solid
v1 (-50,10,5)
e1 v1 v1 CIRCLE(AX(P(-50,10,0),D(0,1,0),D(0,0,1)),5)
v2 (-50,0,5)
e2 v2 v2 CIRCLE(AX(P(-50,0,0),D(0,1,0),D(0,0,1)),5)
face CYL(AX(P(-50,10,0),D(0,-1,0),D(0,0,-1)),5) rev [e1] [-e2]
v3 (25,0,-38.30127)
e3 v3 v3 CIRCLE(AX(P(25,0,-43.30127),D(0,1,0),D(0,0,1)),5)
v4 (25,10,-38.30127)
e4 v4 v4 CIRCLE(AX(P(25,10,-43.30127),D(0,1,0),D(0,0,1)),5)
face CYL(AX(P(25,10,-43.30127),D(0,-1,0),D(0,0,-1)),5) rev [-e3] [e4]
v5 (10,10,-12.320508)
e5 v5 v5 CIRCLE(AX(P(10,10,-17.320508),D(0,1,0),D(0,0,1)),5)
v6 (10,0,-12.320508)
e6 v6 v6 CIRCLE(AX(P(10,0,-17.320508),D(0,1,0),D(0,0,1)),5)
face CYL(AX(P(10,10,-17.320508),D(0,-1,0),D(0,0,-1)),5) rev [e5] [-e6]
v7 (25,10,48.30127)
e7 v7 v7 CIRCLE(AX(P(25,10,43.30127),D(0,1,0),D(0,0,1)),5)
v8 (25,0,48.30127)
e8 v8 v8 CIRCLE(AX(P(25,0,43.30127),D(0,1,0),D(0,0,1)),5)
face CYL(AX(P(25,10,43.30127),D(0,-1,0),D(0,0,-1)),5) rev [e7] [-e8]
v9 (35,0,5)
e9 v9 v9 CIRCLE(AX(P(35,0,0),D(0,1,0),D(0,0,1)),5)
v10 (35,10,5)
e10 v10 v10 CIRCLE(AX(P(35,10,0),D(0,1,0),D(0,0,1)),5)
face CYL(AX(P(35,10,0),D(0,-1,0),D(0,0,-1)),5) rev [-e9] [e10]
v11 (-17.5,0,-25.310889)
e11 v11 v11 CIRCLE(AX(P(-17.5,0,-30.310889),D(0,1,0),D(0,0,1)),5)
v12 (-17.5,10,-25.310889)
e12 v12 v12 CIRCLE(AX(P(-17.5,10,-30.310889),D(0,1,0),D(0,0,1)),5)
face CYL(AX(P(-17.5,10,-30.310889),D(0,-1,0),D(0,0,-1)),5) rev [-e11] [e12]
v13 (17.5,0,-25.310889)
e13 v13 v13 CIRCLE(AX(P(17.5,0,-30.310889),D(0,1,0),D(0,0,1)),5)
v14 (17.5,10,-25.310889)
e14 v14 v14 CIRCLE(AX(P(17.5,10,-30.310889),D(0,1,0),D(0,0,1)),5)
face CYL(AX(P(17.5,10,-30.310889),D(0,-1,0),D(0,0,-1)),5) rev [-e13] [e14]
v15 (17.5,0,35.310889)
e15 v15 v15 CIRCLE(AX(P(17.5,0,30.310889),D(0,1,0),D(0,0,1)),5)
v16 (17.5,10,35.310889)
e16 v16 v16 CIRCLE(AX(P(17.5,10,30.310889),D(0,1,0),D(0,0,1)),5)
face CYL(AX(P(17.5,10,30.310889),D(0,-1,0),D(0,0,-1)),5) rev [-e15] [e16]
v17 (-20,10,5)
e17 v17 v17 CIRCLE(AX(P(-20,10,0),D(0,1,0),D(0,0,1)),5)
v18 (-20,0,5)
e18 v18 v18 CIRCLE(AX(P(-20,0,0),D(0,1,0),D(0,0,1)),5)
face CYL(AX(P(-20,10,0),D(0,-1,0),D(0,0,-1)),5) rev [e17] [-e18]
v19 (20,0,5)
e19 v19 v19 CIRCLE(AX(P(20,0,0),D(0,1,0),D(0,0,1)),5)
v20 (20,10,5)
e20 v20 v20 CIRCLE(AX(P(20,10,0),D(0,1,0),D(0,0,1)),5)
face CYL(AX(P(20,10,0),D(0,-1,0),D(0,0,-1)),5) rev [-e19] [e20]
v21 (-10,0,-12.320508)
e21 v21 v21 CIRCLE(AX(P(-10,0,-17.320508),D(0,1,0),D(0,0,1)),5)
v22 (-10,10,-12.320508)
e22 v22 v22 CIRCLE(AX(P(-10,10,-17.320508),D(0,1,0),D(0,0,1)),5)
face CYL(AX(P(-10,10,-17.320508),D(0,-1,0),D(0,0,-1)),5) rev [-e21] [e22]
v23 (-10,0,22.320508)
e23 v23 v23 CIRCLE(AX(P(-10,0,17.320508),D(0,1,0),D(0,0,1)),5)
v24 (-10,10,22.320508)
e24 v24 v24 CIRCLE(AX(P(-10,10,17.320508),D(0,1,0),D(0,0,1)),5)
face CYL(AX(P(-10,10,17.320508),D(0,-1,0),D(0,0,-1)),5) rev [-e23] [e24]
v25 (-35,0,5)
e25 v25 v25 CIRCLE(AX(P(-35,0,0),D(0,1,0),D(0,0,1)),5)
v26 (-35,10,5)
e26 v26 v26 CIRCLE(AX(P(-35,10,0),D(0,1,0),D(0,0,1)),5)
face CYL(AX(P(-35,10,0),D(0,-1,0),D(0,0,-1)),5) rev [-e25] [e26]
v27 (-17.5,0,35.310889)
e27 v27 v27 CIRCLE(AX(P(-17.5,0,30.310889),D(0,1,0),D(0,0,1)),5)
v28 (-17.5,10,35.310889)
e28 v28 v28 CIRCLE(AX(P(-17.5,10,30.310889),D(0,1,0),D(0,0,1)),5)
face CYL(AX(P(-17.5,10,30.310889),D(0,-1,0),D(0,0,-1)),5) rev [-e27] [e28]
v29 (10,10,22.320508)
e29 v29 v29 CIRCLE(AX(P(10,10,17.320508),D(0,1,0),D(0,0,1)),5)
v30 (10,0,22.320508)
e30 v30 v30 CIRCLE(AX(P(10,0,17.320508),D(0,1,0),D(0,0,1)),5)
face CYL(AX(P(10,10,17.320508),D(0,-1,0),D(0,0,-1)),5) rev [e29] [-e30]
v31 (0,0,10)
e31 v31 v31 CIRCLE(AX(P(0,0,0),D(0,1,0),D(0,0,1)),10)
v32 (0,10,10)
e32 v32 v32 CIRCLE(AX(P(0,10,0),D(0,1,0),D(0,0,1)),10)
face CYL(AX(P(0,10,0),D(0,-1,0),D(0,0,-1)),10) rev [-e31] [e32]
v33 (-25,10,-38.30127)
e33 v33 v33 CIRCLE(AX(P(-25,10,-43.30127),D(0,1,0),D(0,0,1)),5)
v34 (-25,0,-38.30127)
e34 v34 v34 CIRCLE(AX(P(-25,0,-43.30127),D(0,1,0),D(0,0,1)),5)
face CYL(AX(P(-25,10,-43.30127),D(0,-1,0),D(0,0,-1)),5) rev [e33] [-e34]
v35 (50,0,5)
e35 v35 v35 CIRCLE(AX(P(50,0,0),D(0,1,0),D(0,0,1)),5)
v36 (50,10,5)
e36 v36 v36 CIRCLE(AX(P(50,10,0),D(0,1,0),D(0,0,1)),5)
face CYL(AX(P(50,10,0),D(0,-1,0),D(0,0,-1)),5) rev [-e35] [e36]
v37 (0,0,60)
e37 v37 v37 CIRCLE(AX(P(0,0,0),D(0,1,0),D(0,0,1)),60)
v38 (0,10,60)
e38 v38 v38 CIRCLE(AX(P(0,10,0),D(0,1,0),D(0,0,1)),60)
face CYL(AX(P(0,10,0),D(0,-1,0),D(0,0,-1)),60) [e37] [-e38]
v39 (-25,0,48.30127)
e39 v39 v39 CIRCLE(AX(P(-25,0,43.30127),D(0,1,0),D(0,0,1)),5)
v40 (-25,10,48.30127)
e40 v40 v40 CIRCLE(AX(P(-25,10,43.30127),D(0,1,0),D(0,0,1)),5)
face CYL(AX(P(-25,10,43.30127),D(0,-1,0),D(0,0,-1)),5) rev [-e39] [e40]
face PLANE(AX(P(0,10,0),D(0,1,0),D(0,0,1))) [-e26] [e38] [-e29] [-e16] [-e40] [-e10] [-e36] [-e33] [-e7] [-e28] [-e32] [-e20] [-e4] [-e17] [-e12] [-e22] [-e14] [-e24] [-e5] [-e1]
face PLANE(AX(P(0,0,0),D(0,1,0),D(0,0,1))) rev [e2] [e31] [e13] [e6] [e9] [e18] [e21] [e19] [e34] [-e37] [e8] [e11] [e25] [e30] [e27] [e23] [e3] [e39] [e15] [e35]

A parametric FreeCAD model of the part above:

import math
import FreeCAD as App
import Part
import Sketcher
from FreeCAD import Vector
Q = App.Units.Quantity

doc = App.newDocument("Part")
params = doc.addObject("Spreadsheet::Sheet", "Params")
for row, (alias, value) in enumerate([
    ("sketch1_diameter", "10 mm"),
    ("sketch1_radius", "60 mm"),
    ("sketch1_radius2", "10 mm"),
    ("pad1_length", "10 mm"),
], start=1):
    params.set(f"A{row}", alias)
    params.set(f"B{row}", "=" + value)
    params.setAlias(f"B{row}", alias)

body = doc.addObject("PartDesign::Body", "Body")

# Sketch on XZ plane
sketch1 = body.newObject("Sketcher::SketchObject", "Sketch")
sketch1.AttachmentSupport = (doc.getObject("XZ_Plane"), [""])
sketch1.MapMode = "FlatFace"
sketch1.addGeometry([
    Part.ArcOfCircle(Part.Circle(Vector(0, 0, 0), Vector(0, 0, 1), 60), math.radians(-180), math.radians(-90)),  # 0
    Part.ArcOfCircle(Part.Circle(Vector(0, 0, 0), Vector(0, 0, 1), 60), math.radians(90), math.radians(180)),  # 1
    Part.ArcOfCircle(Part.Circle(Vector(0, 0, 0), Vector(0, 0, 1), 60), math.radians(0), math.radians(90)),  # 2
    Part.ArcOfCircle(Part.Circle(Vector(0, 0, 0), Vector(0, 0, 1), 60), math.radians(-90), math.radians(0)),  # 3
    Part.Circle(Vector(-25, 43, 0), Vector(0, 0, 1), 5),  # 4
    Part.Circle(Vector(-18, 30, 0), Vector(0, 0, 1), 5),  # 5
    Part.Circle(Vector(-50, 0, 0), Vector(0, 0, 1), 5),  # 6
    Part.Circle(Vector(-35, 0, 0), Vector(0, 0, 1), 5),  # 7
    Part.Circle(Vector(-10, 17, 0), Vector(0, 0, 1), 5),  # 8
    Part.Circle(Vector(-20, 0, 0), Vector(0, 0, 1), 5),  # 9
    Part.Circle(Vector(25, 43, 0), Vector(0, 0, 1), 5),  # 10
    Part.Circle(Vector(18, 30, 0), Vector(0, 0, 1), 5),  # 11
    Part.Circle(Vector(10, 17, 0), Vector(0, 0, 1), 5),  # 12
    Part.ArcOfCircle(Part.Circle(Vector(0, 0, 0), Vector(0, 0, 1), 10), math.radians(180), math.radians(270)),  # 13
    Part.ArcOfCircle(Part.Circle(Vector(0, 0, 0), Vector(0, 0, 1), 10), math.radians(-90), math.radians(0)),  # 14
    Part.ArcOfCircle(Part.Circle(Vector(0, 0, 0), Vector(0, 0, 1), 10), math.radians(0), math.radians(90)),  # 15
    Part.ArcOfCircle(Part.Circle(Vector(0, 0, 0), Vector(0, 0, 1), 10), math.radians(90), math.radians(180)),  # 16
    Part.Circle(Vector(20, 0, 0), Vector(0, 0, 1), 5),  # 17
    Part.Circle(Vector(35, 0, 0), Vector(0, 0, 1), 5),  # 18
    Part.Circle(Vector(50, 0, 0), Vector(0, 0, 1), 5),  # 19
    Part.Circle(Vector(-10, -17, 0), Vector(0, 0, 1), 5),  # 20
    Part.Circle(Vector(-18, -30, 0), Vector(0, 0, 1), 5),  # 21
    Part.Circle(Vector(-25, -43, 0), Vector(0, 0, 1), 5),  # 22
    Part.Circle(Vector(10, -17, 0), Vector(0, 0, 1), 5),  # 23
    Part.Circle(Vector(18, -30, 0), Vector(0, 0, 1), 5),  # 24
    Part.Circle(Vector(25, -43, 0), Vector(0, 0, 1), 5),  # 25
], False)
sketch1.addConstraint([
    Sketcher.Constraint("Tangent", 0, 1, 1, 2),
    Sketcher.Constraint("Tangent", 1, 1, 2, 2),
    Sketcher.Constraint("Tangent", 2, 1, 3, 2),
    Sketcher.Constraint("Tangent", 3, 1, 0, 2),
    Sketcher.Constraint("Tangent", 13, 2, 14, 1),
    Sketcher.Constraint("Tangent", 14, 2, 15, 1),
    Sketcher.Constraint("Tangent", 15, 2, 16, 1),
    Sketcher.Constraint("Tangent", 16, 2, 13, 1),
    Sketcher.Constraint("Coincident", 0, 3, -1, 1),
    Sketcher.Constraint("Coincident", 13, 3, -1, 1),
    Sketcher.Constraint("Equal", 0, 1),
    Sketcher.Constraint("Equal", 4, 5),
    Sketcher.Constraint("Equal", 5, 6),
    Sketcher.Constraint("Equal", 6, 7),
    Sketcher.Constraint("Equal", 7, 8),
    Sketcher.Constraint("Equal", 8, 9),
    Sketcher.Constraint("Equal", 9, 10),
    Sketcher.Constraint("Equal", 10, 11),
    Sketcher.Constraint("Equal", 11, 12),
    Sketcher.Constraint("Equal", 13, 14),
    Sketcher.Constraint("Equal", 12, 17),
    Sketcher.Constraint("Equal", 17, 18),
    Sketcher.Constraint("Equal", 18, 19),
    Sketcher.Constraint("Equal", 19, 20),
    Sketcher.Constraint("Equal", 20, 21),
    Sketcher.Constraint("Equal", 21, 22),
    Sketcher.Constraint("Equal", 22, 23),
    Sketcher.Constraint("Equal", 23, 24),
    Sketcher.Constraint("Equal", 24, 25),
    Sketcher.Constraint("Symmetric", 9, 3, 17, 3, -1, 1),
    Sketcher.Constraint("Symmetric", 7, 3, 18, 3, -1, 1),
    Sketcher.Constraint("Symmetric", 6, 3, 19, 3, -1, 1),
    Sketcher.Constraint("Symmetric", 12, 3, 20, 3, -1, 1),
    Sketcher.Constraint("Symmetric", 11, 3, 21, 3, -1, 1),
    Sketcher.Constraint("Symmetric", 10, 3, 22, 3, -1, 1),
    Sketcher.Constraint("Symmetric", 8, 3, 23, 3, -1, 1),
    Sketcher.Constraint("Symmetric", 5, 3, 24, 3, -1, 1),
    Sketcher.Constraint("Symmetric", 4, 3, 25, 3, -1, 1),
    Sketcher.Constraint("Symmetric", 4, 3, 10, 3, -2),
    Sketcher.Constraint("Symmetric", 5, 3, 11, 3, -2),
    Sketcher.Constraint("Symmetric", 8, 3, 12, 3, -2),
    Sketcher.Constraint("PointOnObject", 6, 3, -1),
    Sketcher.Constraint("PointOnObject", 7, 3, -1),
    Sketcher.Constraint("PointOnObject", 9, 3, -1),
    Sketcher.Constraint("PointOnObject", 0, 1, -1),
    Sketcher.Constraint("PointOnObject", 1, 1, -2),
    Sketcher.Constraint("PointOnObject", 2, 1, -1),
    Sketcher.Constraint("PointOnObject", 3, 1, -2),
    Sketcher.Constraint("PointOnObject", 13, 2, -2),
    Sketcher.Constraint("PointOnObject", 14, 2, -1),
    Sketcher.Constraint("PointOnObject", 15, 2, -2),
    Sketcher.Constraint("PointOnObject", 16, 2, -1),
    Sketcher.Constraint("Vertical", 23, 3, 14, 2),
    Sketcher.Constraint("Diameter", 4, Q("10 mm")),
    Sketcher.Constraint("Radius", 0, Q("60 mm")),
    Sketcher.Constraint("Radius", 13, Q("10 mm")),
    Sketcher.Constraint("DistanceX", 4, 3, -1, 1, Q("25 mm")),
    Sketcher.Constraint("DistanceX", 6, 3, -1, 1, Q("50 mm")),
    Sketcher.Constraint("DistanceX", 7, 3, -1, 1, Q("35 mm")),
    Sketcher.Constraint("DistanceX", 9, 3, -1, 1, Q("20 mm")),
    Sketcher.Constraint("DistanceX", 5, 3, -1, 1, Q("17.5 mm")),
    Sketcher.Constraint("DistanceY", -1, 1, 4, 3, Q("43.30127 mm")),
    Sketcher.Constraint("DistanceY", -1, 1, 5, 3, Q("30.310889 mm")),
    Sketcher.Constraint("DistanceY", -1, 1, 8, 3, Q("17.320508 mm")),
])
sketch1.setExpression("Constraints[53]", "Params.sketch1_diameter")
sketch1.setExpression("Constraints[54]", "Params.sketch1_radius")
sketch1.setExpression("Constraints[55]", "Params.sketch1_radius2")
pad1 = body.newObject("PartDesign::Pad", "Pad")
pad1.Profile = sketch1
pad1.setExpression("Length", "Params.pad1_length")
pad1.Reversed = True

doc.recompute()
